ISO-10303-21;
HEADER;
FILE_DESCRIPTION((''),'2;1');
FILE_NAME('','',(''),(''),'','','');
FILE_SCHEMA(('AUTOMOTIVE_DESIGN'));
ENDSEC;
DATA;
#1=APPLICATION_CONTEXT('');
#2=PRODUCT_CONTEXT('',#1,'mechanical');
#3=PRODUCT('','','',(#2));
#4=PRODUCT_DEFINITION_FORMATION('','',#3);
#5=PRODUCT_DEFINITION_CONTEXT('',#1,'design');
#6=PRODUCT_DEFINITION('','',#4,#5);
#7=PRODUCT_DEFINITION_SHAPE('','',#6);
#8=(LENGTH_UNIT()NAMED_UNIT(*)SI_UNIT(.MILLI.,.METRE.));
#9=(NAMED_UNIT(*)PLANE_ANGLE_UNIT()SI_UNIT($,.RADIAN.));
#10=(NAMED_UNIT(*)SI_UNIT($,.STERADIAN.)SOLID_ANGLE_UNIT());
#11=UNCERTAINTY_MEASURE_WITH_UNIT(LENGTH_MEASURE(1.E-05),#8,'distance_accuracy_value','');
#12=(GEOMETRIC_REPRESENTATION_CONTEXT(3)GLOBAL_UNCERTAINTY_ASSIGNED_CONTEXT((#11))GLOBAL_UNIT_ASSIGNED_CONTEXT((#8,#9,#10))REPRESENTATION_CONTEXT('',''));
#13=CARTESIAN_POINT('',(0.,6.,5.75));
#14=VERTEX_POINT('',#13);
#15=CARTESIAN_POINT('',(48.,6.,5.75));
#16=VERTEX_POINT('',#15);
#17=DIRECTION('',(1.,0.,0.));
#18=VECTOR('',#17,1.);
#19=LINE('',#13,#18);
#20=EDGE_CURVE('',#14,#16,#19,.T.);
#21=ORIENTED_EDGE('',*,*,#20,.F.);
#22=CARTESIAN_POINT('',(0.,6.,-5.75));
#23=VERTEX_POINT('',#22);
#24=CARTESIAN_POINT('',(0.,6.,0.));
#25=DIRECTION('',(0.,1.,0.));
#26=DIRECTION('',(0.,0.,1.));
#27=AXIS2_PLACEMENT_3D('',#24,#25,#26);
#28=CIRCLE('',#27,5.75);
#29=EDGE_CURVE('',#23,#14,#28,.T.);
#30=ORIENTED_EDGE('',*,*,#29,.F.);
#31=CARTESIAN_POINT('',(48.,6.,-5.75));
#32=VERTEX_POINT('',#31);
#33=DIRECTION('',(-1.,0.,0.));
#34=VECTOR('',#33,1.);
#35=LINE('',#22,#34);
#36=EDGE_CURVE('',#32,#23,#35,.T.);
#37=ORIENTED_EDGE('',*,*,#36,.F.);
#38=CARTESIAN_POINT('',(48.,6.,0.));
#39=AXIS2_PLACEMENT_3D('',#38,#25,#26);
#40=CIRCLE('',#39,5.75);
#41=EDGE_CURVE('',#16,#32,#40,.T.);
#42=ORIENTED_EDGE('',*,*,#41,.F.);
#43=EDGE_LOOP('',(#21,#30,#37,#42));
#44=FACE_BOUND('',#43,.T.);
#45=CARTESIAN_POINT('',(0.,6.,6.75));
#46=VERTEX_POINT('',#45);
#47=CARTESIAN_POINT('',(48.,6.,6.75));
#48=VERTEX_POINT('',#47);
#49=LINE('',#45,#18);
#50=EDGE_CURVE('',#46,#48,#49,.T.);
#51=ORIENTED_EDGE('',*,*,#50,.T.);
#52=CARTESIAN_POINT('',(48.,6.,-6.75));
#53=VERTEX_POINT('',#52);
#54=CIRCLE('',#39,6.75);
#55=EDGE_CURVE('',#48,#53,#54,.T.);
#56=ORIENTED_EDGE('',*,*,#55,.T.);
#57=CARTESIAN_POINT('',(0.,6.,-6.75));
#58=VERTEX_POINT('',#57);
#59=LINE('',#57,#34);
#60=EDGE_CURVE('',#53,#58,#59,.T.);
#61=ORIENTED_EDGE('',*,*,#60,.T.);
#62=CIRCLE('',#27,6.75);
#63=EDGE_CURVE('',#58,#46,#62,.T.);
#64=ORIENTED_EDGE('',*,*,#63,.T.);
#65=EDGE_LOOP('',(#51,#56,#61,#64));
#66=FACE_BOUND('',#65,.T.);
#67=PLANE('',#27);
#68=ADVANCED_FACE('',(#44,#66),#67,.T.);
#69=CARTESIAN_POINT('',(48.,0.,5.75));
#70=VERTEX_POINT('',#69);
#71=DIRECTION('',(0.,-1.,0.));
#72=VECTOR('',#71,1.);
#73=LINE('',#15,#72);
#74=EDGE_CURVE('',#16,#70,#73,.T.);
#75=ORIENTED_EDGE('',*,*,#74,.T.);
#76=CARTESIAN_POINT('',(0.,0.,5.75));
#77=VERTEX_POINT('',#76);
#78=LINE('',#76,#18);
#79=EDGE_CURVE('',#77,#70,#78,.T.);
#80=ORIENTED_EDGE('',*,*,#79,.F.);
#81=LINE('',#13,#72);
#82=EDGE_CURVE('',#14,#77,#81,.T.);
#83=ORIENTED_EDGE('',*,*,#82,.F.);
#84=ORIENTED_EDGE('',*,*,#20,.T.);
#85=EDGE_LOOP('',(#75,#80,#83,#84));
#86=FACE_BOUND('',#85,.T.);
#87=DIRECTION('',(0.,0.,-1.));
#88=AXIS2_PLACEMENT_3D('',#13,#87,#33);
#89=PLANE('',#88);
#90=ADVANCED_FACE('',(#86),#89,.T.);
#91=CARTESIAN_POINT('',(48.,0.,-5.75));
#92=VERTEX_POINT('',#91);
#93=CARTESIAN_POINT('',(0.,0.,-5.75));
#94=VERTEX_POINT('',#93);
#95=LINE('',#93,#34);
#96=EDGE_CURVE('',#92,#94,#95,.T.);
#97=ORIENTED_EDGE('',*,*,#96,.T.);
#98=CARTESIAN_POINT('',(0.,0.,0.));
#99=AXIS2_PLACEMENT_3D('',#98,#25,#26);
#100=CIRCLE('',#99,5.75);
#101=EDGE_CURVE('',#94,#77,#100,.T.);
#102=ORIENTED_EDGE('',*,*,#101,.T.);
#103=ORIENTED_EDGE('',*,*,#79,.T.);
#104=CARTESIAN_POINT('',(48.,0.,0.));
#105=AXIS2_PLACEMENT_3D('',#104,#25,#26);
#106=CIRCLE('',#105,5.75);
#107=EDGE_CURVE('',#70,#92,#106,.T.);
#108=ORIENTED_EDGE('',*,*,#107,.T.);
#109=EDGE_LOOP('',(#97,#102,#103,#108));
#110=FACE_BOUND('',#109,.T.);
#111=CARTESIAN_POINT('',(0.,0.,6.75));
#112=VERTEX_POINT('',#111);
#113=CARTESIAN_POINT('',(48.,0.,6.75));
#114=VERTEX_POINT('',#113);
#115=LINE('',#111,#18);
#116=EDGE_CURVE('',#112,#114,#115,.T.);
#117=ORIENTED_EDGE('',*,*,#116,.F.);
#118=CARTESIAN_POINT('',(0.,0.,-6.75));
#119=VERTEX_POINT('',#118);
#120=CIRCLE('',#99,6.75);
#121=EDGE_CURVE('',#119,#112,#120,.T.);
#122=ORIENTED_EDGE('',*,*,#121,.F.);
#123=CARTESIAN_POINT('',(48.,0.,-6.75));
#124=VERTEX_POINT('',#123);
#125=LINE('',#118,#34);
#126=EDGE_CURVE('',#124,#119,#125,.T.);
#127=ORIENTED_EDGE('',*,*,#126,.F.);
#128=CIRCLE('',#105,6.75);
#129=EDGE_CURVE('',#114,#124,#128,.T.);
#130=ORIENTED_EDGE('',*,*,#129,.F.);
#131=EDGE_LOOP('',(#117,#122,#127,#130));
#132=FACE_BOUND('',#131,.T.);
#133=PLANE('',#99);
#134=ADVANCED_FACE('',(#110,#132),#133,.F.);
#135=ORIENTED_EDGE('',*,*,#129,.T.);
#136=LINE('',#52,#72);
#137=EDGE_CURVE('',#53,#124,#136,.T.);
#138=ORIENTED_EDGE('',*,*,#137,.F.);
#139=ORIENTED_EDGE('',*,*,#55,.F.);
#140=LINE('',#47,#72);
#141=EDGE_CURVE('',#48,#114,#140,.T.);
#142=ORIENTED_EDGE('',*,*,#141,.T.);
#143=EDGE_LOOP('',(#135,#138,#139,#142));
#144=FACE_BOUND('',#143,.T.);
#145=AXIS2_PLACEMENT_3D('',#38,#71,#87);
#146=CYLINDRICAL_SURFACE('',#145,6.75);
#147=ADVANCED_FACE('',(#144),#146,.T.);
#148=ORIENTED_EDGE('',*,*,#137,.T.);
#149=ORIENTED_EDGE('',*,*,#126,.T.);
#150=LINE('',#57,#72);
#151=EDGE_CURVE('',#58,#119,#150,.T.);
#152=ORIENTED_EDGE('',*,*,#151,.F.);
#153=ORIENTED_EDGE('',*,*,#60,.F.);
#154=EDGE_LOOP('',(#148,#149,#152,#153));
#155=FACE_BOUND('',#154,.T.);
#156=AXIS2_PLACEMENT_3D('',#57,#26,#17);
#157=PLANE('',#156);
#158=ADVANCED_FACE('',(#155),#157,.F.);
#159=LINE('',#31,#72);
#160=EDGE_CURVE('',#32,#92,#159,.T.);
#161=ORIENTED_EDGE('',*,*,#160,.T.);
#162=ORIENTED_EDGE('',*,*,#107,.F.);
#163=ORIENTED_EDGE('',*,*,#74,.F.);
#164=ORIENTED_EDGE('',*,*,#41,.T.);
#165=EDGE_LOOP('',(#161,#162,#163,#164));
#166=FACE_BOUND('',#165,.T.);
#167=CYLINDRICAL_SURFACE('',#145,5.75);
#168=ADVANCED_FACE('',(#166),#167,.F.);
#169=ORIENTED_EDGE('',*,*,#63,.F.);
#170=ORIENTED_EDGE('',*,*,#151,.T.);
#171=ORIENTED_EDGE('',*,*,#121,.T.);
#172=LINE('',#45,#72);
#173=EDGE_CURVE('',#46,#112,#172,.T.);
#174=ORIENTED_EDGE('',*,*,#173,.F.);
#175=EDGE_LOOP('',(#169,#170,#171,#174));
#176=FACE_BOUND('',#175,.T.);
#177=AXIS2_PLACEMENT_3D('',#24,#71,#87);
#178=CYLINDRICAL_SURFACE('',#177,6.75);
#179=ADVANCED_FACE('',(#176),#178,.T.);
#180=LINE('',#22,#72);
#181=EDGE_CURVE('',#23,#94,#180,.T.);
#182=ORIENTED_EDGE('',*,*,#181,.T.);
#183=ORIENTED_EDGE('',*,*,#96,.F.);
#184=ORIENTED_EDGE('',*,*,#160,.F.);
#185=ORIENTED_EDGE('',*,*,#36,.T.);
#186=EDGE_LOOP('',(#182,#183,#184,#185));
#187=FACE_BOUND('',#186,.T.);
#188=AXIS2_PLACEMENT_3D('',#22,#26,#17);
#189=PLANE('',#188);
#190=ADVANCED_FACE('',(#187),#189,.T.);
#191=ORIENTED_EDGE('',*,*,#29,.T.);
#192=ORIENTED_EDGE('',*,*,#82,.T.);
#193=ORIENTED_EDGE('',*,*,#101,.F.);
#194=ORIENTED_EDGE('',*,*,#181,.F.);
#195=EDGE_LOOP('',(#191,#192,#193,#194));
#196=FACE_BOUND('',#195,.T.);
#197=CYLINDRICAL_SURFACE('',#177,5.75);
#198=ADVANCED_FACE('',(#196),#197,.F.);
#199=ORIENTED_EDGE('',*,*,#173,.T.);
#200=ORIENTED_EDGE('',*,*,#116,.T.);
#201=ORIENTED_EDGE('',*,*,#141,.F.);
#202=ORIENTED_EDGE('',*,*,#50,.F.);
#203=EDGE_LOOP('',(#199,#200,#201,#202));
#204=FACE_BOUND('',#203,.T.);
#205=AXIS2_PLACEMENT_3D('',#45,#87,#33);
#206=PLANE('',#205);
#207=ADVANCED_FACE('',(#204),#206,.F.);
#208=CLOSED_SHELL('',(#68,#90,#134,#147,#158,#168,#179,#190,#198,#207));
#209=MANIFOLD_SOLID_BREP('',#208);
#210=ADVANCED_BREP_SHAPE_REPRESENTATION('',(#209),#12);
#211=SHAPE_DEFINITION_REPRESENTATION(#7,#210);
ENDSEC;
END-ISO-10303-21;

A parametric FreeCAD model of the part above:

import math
import FreeCAD as App
import Part
import Sketcher
from FreeCAD import Vector
Q = App.Units.Quantity

doc = App.newDocument("Part")
body = doc.addObject("PartDesign::Body", "Body")

sketch1 = body.newObject("Sketcher::SketchObject", "Sketch")
sketch1.AttachmentSupport = (doc.getObject("XZ_Plane"), [""])
sketch1.MapMode = "FlatFace"
sketch1.addGeometry([
    Part.LineSegment(Vector(48, -7, 0), Vector(0, -7, 0)),
    Part.ArcOfCircle(Part.Circle(Vector(0, 0, 0), Vector(0, 0, 1), 7), math.radians(90), math.radians(270)),
    Part.LineSegment(Vector(0, 7, 0), Vector(48, 7, 0)),
    Part.ArcOfCircle(Part.Circle(Vector(48, 0, 0), Vector(0, 0, 1), 7), math.radians(-90), math.radians(90)),
    Part.LineSegment(Vector(0, -6, 0), Vector(48, -6, 0)),
    Part.ArcOfCircle(Part.Circle(Vector(48, 0, 0), Vector(0, 0, 1), 6), math.radians(-90), math.radians(90)),
    Part.LineSegment(Vector(48, 6, 0), Vector(0, 6, 0)),
    Part.ArcOfCircle(Part.Circle(Vector(0, 0, 0), Vector(0, 0, 1), 6), math.radians(90), math.radians(270)),
], False)
sketch1.addConstraint([
    Sketcher.Constraint("Tangent", 0, 2, 1, 2),
    Sketcher.Constraint("Tangent", 1, 1, 2, 1),
    Sketcher.Constraint("Tangent", 2, 2, 3, 2),
    Sketcher.Constraint("Tangent", 3, 1, 0, 1),
    Sketcher.Constraint("Tangent", 4, 2, 5, 1),
    Sketcher.Constraint("Tangent", 5, 2, 6, 1),
    Sketcher.Constraint("Tangent", 6, 2, 7, 1),
    Sketcher.Constraint("Tangent", 7, 2, 4, 1),
    Sketcher.Constraint("Horizontal", 0),
    Sketcher.Constraint("Horizontal", 2),
    Sketcher.Constraint("Horizontal", 4),
    Sketcher.Constraint("Horizontal", 6),
    Sketcher.Constraint("Coincident", 1, 3, -1, 1),
    Sketcher.Constraint("Coincident", 7, 3, -1, 1),
    Sketcher.Constraint("Vertical", 5, 3, 2, 2),
    Sketcher.Constraint("DistanceX", 0, 2, 0, 1, Q("48 mm")),
    Sketcher.Constraint("Radius", 1, Q("6.75 mm")),
    Sketcher.Constraint("Radius", 5, Q("5.75 mm")),
])
pad1 = body.newObject("PartDesign::Pad", "Pad")
pad1.Profile = sketch1
pad1.Length = 6
pad1.Reversed = True

doc.recompute()
